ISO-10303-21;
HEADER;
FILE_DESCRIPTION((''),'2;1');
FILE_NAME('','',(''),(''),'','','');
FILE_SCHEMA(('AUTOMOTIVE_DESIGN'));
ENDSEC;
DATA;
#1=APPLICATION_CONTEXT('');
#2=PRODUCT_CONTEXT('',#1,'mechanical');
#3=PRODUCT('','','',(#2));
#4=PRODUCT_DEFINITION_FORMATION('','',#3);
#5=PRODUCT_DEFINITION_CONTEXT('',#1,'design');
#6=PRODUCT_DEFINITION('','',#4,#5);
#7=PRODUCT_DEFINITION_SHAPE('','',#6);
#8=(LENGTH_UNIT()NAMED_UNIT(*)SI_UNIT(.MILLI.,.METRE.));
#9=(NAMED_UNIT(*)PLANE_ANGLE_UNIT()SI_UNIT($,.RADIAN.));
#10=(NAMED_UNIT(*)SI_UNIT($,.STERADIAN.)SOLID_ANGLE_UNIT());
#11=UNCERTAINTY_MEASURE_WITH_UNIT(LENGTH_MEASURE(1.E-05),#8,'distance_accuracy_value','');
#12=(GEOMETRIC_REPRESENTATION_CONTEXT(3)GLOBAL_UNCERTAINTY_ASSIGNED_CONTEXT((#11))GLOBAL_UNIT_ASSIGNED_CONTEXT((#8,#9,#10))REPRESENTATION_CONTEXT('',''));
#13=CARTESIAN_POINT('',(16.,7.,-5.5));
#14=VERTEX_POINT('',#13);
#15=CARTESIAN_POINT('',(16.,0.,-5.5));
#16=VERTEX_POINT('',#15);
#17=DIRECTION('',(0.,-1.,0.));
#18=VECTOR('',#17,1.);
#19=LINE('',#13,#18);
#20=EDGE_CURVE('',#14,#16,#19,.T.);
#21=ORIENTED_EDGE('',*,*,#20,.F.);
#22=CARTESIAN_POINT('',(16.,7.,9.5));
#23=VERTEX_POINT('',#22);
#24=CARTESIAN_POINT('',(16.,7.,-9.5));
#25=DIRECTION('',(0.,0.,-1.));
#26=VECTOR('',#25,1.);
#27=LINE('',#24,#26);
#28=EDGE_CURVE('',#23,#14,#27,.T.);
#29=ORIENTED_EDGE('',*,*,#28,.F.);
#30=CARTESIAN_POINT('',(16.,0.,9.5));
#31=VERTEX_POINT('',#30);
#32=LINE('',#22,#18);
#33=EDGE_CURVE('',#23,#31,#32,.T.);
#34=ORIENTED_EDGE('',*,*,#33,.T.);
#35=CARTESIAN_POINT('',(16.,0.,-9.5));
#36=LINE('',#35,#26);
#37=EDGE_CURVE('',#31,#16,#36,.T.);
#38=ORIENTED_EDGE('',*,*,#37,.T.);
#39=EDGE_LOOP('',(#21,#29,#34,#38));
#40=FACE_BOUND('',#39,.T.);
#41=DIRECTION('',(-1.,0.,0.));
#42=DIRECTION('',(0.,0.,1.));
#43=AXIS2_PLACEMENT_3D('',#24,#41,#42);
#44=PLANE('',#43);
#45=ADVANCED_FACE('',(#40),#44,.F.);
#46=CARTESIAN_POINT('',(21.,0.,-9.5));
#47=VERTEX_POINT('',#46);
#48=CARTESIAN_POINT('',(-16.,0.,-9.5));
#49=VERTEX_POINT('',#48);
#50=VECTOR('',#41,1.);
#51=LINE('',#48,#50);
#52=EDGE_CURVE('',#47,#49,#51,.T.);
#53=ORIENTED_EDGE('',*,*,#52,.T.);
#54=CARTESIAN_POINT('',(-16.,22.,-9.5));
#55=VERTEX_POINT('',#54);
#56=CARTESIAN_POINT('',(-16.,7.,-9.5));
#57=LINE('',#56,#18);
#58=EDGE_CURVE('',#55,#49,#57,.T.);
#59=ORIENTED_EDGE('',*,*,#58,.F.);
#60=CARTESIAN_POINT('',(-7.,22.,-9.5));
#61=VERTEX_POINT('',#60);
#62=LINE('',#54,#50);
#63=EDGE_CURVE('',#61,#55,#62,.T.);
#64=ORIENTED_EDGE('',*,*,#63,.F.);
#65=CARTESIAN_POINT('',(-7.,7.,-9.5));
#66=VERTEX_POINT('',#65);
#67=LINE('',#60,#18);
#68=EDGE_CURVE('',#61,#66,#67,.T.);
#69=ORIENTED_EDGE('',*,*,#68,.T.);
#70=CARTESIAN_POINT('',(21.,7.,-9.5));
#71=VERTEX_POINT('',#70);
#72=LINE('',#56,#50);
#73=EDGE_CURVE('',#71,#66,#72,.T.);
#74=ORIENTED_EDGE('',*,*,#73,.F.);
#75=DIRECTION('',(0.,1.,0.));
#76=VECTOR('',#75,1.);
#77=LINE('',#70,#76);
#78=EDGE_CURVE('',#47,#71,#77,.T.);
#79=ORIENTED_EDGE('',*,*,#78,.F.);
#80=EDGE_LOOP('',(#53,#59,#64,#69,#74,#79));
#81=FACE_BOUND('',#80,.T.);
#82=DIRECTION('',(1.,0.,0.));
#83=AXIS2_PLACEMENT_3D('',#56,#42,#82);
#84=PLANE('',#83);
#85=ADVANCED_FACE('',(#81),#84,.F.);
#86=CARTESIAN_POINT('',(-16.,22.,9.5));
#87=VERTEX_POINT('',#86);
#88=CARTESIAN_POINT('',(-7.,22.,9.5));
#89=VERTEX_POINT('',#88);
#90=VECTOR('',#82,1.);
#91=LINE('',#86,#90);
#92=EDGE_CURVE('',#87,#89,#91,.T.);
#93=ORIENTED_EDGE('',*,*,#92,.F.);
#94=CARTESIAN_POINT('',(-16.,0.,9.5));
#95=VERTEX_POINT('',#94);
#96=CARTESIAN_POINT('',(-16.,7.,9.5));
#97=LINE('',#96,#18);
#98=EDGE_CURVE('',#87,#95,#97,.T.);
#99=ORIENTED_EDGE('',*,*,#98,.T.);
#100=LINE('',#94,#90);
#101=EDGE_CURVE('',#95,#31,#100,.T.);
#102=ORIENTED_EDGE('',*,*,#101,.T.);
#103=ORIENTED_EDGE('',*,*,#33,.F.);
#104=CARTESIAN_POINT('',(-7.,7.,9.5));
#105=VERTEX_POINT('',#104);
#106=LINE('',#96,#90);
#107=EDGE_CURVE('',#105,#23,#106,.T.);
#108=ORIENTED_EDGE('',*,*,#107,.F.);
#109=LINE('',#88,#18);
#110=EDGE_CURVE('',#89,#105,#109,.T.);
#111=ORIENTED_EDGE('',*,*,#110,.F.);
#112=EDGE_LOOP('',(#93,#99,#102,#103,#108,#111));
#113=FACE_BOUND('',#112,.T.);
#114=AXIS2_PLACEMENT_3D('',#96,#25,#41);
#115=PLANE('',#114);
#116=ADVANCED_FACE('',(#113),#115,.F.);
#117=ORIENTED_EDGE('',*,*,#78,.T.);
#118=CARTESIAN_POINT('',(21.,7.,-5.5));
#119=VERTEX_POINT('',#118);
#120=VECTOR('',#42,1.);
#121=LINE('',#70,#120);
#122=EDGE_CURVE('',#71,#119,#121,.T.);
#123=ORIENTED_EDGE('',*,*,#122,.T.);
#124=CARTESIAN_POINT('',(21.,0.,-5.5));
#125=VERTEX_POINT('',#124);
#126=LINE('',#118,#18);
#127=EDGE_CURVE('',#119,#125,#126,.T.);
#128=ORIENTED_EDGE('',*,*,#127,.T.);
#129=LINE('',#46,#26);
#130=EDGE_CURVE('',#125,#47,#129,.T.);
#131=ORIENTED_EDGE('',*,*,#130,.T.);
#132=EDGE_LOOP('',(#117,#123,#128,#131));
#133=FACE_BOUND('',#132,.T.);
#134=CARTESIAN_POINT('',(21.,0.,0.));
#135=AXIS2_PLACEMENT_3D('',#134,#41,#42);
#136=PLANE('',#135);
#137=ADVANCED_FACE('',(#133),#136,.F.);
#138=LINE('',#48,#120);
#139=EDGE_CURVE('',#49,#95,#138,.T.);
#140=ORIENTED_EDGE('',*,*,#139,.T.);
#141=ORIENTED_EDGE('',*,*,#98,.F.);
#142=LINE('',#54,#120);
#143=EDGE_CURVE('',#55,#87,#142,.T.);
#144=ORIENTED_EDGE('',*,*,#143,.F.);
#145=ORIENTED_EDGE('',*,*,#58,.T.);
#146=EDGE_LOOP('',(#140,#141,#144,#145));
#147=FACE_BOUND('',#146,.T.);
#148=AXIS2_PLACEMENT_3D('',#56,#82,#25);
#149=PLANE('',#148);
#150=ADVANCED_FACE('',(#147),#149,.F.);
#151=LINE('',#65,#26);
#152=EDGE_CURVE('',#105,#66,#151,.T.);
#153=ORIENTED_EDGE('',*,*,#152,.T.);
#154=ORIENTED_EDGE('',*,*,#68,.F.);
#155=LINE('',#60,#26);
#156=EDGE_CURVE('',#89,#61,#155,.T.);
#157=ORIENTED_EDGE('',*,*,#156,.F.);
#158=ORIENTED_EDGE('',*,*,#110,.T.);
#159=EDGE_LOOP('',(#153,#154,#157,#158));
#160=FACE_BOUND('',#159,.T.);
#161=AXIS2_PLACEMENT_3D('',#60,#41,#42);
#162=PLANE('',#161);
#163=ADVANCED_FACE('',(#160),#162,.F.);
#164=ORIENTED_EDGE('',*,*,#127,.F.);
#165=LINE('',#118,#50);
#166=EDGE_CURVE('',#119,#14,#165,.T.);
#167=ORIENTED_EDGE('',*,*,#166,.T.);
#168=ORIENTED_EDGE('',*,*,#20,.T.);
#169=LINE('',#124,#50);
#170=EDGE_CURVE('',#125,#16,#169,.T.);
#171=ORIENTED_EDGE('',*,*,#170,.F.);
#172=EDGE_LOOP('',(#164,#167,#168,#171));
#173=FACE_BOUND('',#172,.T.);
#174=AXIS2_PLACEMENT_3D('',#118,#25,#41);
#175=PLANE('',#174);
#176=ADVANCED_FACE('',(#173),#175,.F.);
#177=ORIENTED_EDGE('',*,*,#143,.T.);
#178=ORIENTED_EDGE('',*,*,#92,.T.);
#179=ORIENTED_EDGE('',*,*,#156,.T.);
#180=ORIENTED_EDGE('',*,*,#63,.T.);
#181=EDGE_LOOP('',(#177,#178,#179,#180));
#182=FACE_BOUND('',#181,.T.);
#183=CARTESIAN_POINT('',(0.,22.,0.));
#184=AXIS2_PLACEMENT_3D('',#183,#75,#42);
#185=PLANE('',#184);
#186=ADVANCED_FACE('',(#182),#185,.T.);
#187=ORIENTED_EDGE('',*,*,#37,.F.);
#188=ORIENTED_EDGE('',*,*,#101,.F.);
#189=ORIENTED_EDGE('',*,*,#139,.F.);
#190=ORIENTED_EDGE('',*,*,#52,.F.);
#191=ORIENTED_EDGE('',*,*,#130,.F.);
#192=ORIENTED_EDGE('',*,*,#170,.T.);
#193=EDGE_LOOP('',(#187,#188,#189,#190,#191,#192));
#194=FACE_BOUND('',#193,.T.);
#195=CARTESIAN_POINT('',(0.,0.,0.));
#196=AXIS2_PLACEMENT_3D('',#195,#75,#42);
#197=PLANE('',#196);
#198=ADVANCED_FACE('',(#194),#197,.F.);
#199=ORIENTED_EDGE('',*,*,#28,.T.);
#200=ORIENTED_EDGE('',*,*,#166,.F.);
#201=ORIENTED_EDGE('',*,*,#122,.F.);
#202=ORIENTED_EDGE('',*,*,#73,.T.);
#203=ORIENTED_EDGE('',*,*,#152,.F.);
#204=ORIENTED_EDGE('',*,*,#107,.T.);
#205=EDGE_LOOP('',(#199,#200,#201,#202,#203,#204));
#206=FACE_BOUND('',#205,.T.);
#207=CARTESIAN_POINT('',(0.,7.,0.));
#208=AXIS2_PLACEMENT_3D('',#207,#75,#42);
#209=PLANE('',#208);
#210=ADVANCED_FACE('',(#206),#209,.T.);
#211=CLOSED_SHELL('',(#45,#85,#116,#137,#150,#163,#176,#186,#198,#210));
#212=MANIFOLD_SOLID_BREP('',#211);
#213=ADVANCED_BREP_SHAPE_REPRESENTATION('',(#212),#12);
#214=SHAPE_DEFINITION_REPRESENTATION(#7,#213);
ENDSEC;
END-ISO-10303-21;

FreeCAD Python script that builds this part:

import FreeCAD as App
import Part
import Sketcher
from FreeCAD import Vector

doc = App.newDocument("Part")
body = doc.addObject("PartDesign::Body", "Body")

# Sketch on XZ plane
sketch1 = body.newObject("Sketcher::SketchObject", "Sketch")
sketch1.AttachmentSupport = (doc.getObject("XZ_Plane"), [""])
sketch1.MapMode = "FlatFace"
sketch1.addGeometry(Part.LineSegment(Vector(-16, -10, 0), Vector(-16, 10, 0)), False)
sketch1.addGeometry(Part.LineSegment(Vector(-16, 10, 0), Vector(16, 10, 0)), False)
sketch1.addGeometry(Part.LineSegment(Vector(16, 10, 0), Vector(16, -10, 0)), False)
sketch1.addGeometry(Part.LineSegment(Vector(16, -10, 0), Vector(-16, -10, 0)), False)
sketch1.addConstraint(Sketcher.Constraint("Coincident", 0, 2, 1, 1))
sketch1.addConstraint(Sketcher.Constraint("Coincident", 1, 2, 2, 1))
sketch1.addConstraint(Sketcher.Constraint("Coincident", 2, 2, 3, 1))
sketch1.addConstraint(Sketcher.Constraint("Coincident", 3, 2, 0, 1))
sketch1.addConstraint(Sketcher.Constraint("Vertical", 0))
sketch1.addConstraint(Sketcher.Constraint("Horizontal", 1))
sketch1.addConstraint(Sketcher.Constraint("Vertical", 2))
sketch1.addConstraint(Sketcher.Constraint("Horizontal", 3))
sketch1.addConstraint(Sketcher.Constraint("Symmetric", 0, 2, 2, 2, -1, 1))
sketch1.addConstraint(Sketcher.Constraint("DistanceX", 1, 1, 1, 2, 32.0))
sketch1.addConstraint(Sketcher.Constraint("DistanceY", 0, 1, 0, 2, 19.0))
pad1 = body.newObject("PartDesign::Pad", "Pad")
pad1.Profile = sketch1
pad1.Length = 7
pad1.Reversed = True

# Sketch on XZ plane
sketch2 = body.newObject("Sketcher::SketchObject", "Sketch001")
sketch2.AttachmentSupport = (doc.getObject("XZ_Plane"), [""])
sketch2.MapMode = "FlatFace"
sketch2.AttachmentOffset = App.Placement(Vector(0, 0, -7), App.Rotation())
sketch2.addGeometry(Part.LineSegment(Vector(-16, -10, 0), Vector(-16, 10, 0)), False)
sketch2.addGeometry(Part.LineSegment(Vector(-16, 10, 0), Vector(-7, 10, 0)), False)
sketch2.addGeometry(Part.LineSegment(Vector(-7, 10, 0), Vector(-7, -10, 0)), False)
sketch2.addGeometry(Part.LineSegment(Vector(-7, -10, 0), Vector(-16, -10, 0)), False)
sketch2.addConstraint(Sketcher.Constraint("Coincident", 0, 2, 1, 1))
sketch2.addConstraint(Sketcher.Constraint("Coincident", 1, 2, 2, 1))
sketch2.addConstraint(Sketcher.Constraint("Coincident", 2, 2, 3, 1))
sketch2.addConstraint(Sketcher.Constraint("Coincident", 3, 2, 0, 1))
sketch2.addConstraint(Sketcher.Constraint("Vertical", 0))
sketch2.addConstraint(Sketcher.Constraint("Horizontal", 1))
sketch2.addConstraint(Sketcher.Constraint("Vertical", 2))
sketch2.addConstraint(Sketcher.Constraint("Horizontal", 3))
sketch2.addConstraint(Sketcher.Constraint("DistanceX", 1, 1, 1, 2, 9.0))
sketch2.addConstraint(Sketcher.Constraint("DistanceY", 0, 1, 0, 2, 19.0))
sketch2.addConstraint(Sketcher.Constraint("DistanceX", 0, 2, -1, 1, 16.0))
sketch2.addConstraint(Sketcher.Constraint("DistanceY", -1, 1, 0, 2, 9.5))
pad2 = body.newObject("PartDesign::Pad", "Pad001")
pad2.Profile = sketch2
pad2.Length = 15
pad2.Reversed = True

# Sketch on YZ plane
sketch3 = body.newObject("Sketcher::SketchObject", "Sketch002")
sketch3.AttachmentSupport = (doc.getObject("YZ_Plane"), [""])
sketch3.MapMode = "FlatFace"
sketch3.AttachmentOffset = App.Placement(Vector(0, 0, 16), App.Rotation())
sketch3.addGeometry(Part.LineSegment(Vector(7, -5.5, 0), Vector(0, -5.5, 0)), False)
sketch3.addGeometry(Part.LineSegment(Vector(0, -5.5, 0), Vector(0, -9.5, 0)), False)
sketch3.addGeometry(Part.LineSegment(Vector(0, -9.5, 0), Vector(7, -9.5, 0)), False)
sketch3.addGeometry(Part.LineSegment(Vector(7, -9.5, 0), Vector(7, -5.5, 0)), False)
sketch3.addConstraint(Sketcher.Constraint("Coincident", 0, 2, 1, 1))
sketch3.addConstraint(Sketcher.Constraint("Coincident", 1, 2, 2, 1))
sketch3.addConstraint(Sketcher.Constraint("Coincident", 2, 2, 3, 1))
sketch3.addConstraint(Sketcher.Constraint("Coincident", 3, 2, 0, 1))
sketch3.addConstraint(Sketcher.Constraint("Horizontal", 0))
sketch3.addConstraint(Sketcher.Constraint("Vertical", 1))
sketch3.addConstraint(Sketcher.Constraint("Horizontal", 2))
sketch3.addConstraint(Sketcher.Constraint("Vertical", 3))
sketch3.addConstraint(Sketcher.Constraint("PointOnObject", 0, 2, -2))
sketch3.addConstraint(Sketcher.Constraint("DistanceX", 0, 2, 0, 1, 7.0))
sketch3.addConstraint(Sketcher.Constraint("DistanceY", 1, 2, 1, 1, 4.0))
sketch3.addConstraint(Sketcher.Constraint("DistanceY", 0, 2, -1, 1, 5.5))
pad3 = body.newObject("PartDesign::Pad", "Pad002")
pad3.Profile = sketch3
pad3.Length = 5

doc.recompute()
